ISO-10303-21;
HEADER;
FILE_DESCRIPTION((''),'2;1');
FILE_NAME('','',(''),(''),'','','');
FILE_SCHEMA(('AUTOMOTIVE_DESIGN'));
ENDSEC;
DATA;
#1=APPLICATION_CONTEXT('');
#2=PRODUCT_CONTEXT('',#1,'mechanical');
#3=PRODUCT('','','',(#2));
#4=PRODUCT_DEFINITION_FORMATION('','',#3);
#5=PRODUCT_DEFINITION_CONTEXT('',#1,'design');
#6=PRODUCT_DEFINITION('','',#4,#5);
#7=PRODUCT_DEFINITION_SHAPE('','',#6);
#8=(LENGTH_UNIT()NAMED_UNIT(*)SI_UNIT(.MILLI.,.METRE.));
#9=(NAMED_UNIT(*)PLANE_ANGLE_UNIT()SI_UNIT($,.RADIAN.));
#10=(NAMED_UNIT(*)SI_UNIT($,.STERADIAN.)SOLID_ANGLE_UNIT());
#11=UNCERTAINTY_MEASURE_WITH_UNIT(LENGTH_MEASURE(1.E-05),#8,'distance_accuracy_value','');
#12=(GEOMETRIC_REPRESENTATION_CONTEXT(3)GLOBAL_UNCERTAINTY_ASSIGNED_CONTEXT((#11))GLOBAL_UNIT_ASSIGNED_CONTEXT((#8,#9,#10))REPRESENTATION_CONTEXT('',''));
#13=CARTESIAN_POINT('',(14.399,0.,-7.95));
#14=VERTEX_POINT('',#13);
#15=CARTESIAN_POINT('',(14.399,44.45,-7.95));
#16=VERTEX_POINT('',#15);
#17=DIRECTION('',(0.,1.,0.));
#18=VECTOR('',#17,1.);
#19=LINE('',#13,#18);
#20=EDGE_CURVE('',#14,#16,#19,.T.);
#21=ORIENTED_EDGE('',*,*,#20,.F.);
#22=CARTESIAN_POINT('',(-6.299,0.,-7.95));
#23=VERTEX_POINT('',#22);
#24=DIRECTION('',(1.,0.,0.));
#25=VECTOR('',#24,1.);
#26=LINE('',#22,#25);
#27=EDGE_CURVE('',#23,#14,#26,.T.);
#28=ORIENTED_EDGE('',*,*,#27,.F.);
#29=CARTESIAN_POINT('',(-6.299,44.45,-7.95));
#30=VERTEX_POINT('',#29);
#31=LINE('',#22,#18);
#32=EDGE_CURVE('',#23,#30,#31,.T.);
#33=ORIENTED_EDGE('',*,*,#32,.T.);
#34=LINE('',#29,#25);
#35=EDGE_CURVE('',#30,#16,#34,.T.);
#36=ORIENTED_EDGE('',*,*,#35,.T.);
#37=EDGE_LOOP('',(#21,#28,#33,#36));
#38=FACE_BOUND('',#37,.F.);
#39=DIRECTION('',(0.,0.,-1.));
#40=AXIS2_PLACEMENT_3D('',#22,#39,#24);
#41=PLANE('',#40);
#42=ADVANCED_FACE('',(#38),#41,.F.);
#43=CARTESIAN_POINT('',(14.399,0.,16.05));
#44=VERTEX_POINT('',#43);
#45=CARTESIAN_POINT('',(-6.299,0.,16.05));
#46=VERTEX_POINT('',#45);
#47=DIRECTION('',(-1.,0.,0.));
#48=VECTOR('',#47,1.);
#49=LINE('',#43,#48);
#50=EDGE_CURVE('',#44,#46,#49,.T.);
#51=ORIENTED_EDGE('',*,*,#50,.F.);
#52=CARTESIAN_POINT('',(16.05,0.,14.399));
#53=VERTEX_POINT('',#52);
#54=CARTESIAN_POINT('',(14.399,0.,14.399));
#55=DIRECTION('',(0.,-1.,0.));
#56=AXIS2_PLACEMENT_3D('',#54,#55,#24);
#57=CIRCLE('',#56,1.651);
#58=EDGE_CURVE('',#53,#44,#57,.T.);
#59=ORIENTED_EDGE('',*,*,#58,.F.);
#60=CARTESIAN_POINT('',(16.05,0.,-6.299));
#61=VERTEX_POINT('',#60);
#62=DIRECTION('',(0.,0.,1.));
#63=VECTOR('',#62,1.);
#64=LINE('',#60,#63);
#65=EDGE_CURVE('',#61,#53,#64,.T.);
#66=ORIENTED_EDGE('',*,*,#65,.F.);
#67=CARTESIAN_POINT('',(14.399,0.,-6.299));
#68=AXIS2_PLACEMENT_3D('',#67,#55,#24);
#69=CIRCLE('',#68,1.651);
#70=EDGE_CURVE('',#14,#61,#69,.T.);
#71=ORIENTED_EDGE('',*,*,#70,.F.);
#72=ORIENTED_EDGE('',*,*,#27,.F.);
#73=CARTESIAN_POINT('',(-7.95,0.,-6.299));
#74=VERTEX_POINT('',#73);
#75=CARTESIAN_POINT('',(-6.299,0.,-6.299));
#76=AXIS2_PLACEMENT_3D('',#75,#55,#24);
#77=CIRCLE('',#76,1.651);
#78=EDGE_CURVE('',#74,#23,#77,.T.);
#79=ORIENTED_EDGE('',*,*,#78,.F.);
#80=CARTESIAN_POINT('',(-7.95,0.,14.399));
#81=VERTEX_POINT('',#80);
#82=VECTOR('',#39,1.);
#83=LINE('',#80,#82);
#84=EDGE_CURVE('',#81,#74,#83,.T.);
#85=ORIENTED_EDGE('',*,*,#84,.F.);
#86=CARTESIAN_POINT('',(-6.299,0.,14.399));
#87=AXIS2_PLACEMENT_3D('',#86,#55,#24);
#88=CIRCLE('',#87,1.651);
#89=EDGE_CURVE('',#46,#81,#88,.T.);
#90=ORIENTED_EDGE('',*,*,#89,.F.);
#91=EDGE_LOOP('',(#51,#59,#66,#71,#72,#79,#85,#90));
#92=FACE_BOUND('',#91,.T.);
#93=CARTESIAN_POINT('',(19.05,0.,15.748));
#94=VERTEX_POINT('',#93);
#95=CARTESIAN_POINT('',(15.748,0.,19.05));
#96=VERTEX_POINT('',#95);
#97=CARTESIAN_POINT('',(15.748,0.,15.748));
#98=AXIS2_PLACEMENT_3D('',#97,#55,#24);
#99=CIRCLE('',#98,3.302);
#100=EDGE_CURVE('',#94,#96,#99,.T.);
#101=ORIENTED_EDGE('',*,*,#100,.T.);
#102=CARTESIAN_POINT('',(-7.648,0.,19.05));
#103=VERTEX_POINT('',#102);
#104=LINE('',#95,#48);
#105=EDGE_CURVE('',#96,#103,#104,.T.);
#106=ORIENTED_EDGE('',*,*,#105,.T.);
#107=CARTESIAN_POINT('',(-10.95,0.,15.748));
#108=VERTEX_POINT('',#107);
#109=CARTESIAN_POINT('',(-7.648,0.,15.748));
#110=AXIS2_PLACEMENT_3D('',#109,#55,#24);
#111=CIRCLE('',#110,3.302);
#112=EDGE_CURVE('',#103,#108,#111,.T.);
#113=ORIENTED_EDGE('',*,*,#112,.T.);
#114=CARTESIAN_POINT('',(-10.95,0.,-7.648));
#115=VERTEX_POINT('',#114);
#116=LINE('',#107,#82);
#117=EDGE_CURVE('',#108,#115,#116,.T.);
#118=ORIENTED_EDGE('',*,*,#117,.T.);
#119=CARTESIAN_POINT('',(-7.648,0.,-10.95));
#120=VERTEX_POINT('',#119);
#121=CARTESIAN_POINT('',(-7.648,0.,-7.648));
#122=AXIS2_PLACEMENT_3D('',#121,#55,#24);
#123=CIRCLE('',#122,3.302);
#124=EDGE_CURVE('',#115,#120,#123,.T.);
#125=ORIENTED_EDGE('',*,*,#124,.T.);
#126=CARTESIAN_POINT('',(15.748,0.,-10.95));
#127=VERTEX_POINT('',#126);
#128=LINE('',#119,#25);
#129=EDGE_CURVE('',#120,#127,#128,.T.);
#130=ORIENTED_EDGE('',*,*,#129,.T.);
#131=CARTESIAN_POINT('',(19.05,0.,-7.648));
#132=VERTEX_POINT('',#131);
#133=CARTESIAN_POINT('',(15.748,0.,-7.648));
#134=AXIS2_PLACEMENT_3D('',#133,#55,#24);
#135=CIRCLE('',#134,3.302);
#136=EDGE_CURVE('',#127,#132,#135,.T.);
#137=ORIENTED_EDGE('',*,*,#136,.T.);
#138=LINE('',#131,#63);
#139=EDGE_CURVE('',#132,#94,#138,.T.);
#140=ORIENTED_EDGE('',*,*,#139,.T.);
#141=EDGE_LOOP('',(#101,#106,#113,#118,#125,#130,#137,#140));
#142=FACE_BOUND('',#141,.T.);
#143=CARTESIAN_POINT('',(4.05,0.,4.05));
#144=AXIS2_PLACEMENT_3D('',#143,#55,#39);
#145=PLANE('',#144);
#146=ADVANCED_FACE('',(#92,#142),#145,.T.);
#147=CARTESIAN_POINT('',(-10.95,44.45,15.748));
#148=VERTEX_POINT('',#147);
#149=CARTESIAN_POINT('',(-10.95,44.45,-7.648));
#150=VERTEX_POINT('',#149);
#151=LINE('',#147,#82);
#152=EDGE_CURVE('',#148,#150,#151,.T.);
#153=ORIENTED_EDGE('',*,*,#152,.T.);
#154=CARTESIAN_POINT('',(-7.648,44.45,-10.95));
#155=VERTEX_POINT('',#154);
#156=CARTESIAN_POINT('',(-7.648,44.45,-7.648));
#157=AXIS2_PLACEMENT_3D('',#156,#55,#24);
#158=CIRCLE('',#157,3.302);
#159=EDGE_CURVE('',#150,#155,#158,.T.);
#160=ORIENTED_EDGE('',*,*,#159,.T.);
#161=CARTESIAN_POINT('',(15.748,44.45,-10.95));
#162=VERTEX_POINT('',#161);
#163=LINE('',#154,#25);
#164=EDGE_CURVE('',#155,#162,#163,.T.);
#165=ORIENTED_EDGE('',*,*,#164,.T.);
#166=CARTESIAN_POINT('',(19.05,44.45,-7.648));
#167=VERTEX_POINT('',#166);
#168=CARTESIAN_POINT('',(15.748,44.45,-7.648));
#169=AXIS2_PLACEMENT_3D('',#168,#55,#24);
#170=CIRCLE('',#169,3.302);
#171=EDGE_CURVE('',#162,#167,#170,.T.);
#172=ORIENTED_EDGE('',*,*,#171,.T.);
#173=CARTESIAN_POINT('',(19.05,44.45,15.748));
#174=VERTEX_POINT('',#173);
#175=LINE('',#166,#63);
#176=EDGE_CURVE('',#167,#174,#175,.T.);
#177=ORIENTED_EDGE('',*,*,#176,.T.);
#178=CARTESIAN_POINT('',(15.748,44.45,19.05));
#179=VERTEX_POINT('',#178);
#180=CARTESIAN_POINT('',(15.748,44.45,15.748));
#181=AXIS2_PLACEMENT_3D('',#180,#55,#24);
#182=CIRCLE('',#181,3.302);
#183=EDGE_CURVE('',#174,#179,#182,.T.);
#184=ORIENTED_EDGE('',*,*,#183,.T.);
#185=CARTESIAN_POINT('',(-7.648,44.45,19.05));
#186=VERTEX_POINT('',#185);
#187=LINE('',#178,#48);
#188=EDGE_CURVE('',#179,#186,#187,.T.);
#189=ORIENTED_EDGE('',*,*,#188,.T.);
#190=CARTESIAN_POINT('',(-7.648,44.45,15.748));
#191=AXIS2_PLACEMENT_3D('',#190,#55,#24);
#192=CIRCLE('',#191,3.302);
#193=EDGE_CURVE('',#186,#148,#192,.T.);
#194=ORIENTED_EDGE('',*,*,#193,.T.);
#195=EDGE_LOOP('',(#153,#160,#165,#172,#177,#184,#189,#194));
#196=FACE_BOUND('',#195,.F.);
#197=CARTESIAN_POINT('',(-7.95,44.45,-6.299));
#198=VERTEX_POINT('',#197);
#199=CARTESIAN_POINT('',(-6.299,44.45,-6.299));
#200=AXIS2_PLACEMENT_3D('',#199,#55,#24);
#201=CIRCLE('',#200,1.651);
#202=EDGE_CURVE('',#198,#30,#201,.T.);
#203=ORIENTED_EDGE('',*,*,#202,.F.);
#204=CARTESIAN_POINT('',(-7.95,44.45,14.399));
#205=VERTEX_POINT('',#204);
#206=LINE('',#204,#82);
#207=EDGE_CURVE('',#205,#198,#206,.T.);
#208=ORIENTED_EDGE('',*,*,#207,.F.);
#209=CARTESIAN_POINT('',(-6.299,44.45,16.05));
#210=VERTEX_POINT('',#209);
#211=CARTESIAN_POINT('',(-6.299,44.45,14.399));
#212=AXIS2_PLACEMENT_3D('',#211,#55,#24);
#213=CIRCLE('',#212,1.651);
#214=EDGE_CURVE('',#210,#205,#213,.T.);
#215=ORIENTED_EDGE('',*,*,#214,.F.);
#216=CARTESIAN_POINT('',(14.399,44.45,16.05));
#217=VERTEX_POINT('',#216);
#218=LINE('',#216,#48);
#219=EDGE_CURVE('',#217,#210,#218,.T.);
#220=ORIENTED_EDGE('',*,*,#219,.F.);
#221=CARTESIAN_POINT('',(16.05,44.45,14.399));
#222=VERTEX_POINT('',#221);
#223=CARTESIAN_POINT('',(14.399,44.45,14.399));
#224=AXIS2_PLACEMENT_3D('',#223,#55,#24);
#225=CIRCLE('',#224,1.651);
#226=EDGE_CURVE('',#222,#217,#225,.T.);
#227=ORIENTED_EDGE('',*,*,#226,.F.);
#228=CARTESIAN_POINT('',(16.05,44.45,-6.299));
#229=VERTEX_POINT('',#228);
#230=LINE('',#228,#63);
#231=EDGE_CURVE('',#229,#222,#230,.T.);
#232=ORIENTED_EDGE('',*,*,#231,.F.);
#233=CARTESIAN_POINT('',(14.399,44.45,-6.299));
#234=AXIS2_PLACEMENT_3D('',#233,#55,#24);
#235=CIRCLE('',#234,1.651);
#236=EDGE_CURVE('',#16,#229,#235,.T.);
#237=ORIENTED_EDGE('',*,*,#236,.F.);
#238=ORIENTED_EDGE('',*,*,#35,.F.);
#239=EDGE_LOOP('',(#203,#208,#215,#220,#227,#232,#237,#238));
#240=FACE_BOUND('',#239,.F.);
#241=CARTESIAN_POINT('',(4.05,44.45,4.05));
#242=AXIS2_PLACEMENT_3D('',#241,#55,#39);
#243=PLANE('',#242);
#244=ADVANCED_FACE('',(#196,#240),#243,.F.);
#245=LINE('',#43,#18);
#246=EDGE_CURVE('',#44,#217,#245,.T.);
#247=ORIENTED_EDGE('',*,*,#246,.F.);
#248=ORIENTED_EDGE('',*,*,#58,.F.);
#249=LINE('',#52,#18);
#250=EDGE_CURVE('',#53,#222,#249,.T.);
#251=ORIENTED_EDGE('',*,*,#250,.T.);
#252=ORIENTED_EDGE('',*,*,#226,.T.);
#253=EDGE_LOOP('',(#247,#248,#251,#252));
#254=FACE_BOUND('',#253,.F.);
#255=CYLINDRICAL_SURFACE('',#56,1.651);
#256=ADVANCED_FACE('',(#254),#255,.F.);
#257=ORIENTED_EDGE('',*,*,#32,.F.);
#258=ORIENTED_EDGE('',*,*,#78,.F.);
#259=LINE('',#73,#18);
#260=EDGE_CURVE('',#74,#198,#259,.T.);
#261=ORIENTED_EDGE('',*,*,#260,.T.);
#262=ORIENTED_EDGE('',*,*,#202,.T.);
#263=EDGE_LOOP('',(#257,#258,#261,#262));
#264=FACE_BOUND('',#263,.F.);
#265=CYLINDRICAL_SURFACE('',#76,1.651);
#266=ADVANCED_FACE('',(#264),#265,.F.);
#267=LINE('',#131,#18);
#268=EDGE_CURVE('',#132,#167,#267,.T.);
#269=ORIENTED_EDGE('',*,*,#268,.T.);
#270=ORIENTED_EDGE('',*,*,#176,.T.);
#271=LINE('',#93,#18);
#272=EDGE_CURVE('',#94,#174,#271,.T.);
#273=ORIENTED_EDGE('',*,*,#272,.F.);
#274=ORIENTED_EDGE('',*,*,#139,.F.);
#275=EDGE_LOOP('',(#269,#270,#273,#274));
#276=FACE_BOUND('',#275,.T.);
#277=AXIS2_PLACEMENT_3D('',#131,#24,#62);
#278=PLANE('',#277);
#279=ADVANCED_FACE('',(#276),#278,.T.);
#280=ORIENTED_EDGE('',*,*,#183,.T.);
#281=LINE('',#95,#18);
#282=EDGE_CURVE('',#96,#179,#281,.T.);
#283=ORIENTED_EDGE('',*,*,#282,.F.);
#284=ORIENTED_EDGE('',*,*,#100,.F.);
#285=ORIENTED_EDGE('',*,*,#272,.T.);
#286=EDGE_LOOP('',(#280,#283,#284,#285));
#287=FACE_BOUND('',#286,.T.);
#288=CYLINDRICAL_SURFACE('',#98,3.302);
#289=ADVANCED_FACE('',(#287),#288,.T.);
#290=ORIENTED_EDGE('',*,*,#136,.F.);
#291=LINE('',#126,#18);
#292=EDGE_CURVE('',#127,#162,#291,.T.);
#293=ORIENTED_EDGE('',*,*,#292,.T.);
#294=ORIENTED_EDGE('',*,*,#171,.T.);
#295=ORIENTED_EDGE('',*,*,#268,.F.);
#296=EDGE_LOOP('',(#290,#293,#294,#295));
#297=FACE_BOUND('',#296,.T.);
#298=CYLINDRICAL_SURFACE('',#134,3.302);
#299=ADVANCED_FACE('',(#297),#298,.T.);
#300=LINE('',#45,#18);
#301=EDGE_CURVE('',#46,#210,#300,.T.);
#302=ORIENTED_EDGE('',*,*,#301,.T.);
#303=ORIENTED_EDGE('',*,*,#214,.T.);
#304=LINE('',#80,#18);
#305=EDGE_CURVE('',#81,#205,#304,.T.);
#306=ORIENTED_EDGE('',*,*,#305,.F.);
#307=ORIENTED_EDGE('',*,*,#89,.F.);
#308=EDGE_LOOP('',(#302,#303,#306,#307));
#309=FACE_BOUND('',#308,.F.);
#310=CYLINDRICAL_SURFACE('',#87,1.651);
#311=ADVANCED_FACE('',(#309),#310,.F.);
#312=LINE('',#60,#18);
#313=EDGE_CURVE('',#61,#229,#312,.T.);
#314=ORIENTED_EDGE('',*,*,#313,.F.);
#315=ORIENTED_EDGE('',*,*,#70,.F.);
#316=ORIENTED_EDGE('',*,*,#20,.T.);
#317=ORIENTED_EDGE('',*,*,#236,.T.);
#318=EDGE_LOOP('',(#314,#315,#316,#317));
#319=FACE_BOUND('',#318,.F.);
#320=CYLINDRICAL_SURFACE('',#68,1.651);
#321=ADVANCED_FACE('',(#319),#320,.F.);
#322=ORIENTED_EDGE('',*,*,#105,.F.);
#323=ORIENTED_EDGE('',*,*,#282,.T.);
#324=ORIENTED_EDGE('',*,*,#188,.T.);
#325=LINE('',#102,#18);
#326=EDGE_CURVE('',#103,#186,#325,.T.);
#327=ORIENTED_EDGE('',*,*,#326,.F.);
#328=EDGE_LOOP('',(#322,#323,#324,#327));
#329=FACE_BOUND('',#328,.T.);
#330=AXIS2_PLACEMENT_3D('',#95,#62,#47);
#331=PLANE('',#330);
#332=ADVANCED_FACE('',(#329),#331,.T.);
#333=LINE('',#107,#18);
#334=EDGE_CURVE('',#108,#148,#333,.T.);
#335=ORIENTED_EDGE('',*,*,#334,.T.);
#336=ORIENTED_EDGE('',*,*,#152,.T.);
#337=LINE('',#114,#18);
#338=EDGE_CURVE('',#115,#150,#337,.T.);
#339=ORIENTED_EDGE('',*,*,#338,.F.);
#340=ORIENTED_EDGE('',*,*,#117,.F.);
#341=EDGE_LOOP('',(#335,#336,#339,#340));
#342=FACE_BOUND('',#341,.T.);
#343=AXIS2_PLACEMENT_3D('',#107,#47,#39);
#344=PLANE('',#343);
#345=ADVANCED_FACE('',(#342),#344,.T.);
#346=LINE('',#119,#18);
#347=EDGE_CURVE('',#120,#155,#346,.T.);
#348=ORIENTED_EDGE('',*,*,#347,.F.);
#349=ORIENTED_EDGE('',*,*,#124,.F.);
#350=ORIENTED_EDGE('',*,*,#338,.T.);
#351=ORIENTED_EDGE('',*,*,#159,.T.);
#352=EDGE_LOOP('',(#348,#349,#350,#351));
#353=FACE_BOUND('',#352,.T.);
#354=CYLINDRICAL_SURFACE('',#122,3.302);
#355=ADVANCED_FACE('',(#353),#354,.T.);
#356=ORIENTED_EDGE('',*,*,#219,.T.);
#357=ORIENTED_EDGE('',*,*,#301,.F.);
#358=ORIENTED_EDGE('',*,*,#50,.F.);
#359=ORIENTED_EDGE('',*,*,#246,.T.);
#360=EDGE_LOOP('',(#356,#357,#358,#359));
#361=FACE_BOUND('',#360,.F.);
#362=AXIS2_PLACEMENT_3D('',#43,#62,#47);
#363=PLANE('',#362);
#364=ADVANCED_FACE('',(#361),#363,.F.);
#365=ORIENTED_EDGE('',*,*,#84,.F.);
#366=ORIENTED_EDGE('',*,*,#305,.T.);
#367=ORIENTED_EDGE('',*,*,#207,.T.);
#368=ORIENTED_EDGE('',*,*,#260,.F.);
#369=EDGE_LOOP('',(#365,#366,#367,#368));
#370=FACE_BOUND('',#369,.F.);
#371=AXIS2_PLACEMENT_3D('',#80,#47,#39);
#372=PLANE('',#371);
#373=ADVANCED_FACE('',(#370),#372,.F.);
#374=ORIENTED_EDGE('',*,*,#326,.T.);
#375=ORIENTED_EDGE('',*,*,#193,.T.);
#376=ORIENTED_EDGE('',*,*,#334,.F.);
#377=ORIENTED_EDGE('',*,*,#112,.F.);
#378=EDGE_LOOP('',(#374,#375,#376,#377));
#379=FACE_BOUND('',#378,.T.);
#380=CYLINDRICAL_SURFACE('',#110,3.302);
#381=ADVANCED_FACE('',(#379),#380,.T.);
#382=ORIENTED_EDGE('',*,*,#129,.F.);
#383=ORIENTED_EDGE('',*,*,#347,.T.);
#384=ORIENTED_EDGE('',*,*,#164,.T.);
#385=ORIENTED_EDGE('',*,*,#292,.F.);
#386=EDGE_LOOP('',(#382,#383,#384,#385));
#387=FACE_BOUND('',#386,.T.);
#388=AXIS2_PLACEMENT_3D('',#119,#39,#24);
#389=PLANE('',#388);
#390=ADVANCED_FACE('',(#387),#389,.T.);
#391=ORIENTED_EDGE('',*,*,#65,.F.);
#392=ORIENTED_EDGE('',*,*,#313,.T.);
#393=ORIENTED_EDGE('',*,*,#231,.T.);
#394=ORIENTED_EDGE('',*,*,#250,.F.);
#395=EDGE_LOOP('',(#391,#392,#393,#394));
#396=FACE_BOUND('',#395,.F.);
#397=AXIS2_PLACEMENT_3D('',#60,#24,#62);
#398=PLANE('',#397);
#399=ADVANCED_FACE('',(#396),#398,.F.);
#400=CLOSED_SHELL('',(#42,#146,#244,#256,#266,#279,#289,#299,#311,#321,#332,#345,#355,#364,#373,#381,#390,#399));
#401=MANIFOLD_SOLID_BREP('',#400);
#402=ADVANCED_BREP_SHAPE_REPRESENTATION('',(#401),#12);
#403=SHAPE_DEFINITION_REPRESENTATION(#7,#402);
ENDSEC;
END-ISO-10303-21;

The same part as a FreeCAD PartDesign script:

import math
import FreeCAD as App
import Part
import Sketcher

V = App.Vector
Q = App.Units.Quantity

doc = App.newDocument("Part")
body = doc.addObject("PartDesign::Body", "Body")

sketch1 = body.newObject("Sketcher::SketchObject", "Sketch")
sketch1.AttachmentSupport = (doc.getObject("XZ_Plane"), [""])
sketch1.MapMode = "FlatFace"
sketch1.addGeometry([
    Part.LineSegment(V(-10.9, 15.7, 0), V(-10.9, -7.6, 0)),
    Part.ArcOfCircle(Part.Circle(V(-7.6, -7.6, 0), V(0, 0, 1), 3.3), math.radians(180), math.radians(270)),
    Part.LineSegment(V(-7.6, -10.9, 0), V(15.7, -10.9, 0)),
    Part.ArcOfCircle(Part.Circle(V(15.7, -7.6, 0), V(0, 0, 1), 3.3), math.radians(-90), math.radians(0)),
    Part.LineSegment(V(19.1, -7.6, 0), V(19.1, 15.7, 0)),
    Part.ArcOfCircle(Part.Circle(V(15.7, 15.7, 0), V(0, 0, 1), 3.3), math.radians(0), math.radians(90)),
    Part.LineSegment(V(15.7, 19.1, 0), V(-7.6, 19.1, 0)),
    Part.ArcOfCircle(Part.Circle(V(-7.6, 15.7, 0), V(0, 0, 1), 3.3), math.radians(90), math.radians(180)),
    Part.LineSegment(V(-8, -6.3, 0), V(-8, 14.4, 0)),
    Part.ArcOfCircle(Part.Circle(V(-6.3, 14.4, 0), V(0, 0, 1), 1.7), math.radians(90), math.radians(180)),
    Part.LineSegment(V(-6.3, 16.1, 0), V(14.4, 16.1, 0)),
    Part.ArcOfCircle(Part.Circle(V(14.4, 14.4, 0), V(0, 0, 1), 1.7), math.radians(0), math.radians(90)),
    Part.LineSegment(V(16.1, 14.4, 0), V(16.1, -6.3, 0)),
    Part.ArcOfCircle(Part.Circle(V(14.4, -6.3, 0), V(0, 0, 1), 1.7), math.radians(-90), math.radians(0)),
    Part.LineSegment(V(14.4, -8, 0), V(-6.3, -8, 0)),
    Part.ArcOfCircle(Part.Circle(V(-6.3, -6.3, 0), V(0, 0, 1), 1.7), math.radians(180), math.radians(270)),
], False)
sketch1.addConstraint([
    Sketcher.Constraint("Tangent", 0, 2, 1, 1),
    Sketcher.Constraint("Tangent", 1, 2, 2, 1),
    Sketcher.Constraint("Tangent", 2, 2, 3, 1),
    Sketcher.Constraint("Tangent", 3, 2, 4, 1),
    Sketcher.Constraint("Tangent", 4, 2, 5, 1),
    Sketcher.Constraint("Tangent", 5, 2, 6, 1),
    Sketcher.Constraint("Tangent", 6, 2, 7, 1),
    Sketcher.Constraint("Tangent", 7, 2, 0, 1),
    Sketcher.Constraint("Tangent", 8, 2, 9, 2),
    Sketcher.Constraint("Tangent", 9, 1, 10, 1),
    Sketcher.Constraint("Tangent", 10, 2, 11, 2),
    Sketcher.Constraint("Tangent", 11, 1, 12, 1),
    Sketcher.Constraint("Tangent", 12, 2, 13, 2),
    Sketcher.Constraint("Tangent", 13, 1, 14, 1),
    Sketcher.Constraint("Tangent", 14, 2, 15, 2),
    Sketcher.Constraint("Tangent", 15, 1, 8, 1),
    Sketcher.Constraint("Vertical", 0),
    Sketcher.Constraint("Horizontal", 2),
    Sketcher.Constraint("Vertical", 4),
    Sketcher.Constraint("Horizontal", 6),
    Sketcher.Constraint("Vertical", 8),
    Sketcher.Constraint("Horizontal", 10),
    Sketcher.Constraint("Vertical", 12),
    Sketcher.Constraint("Horizontal", 14),
    Sketcher.Constraint("Equal", 1, 3),
    Sketcher.Constraint("Equal", 3, 5),
    Sketcher.Constraint("Equal", 5, 7),
    Sketcher.Constraint("Equal", 9, 11),
    Sketcher.Constraint("Equal", 11, 13),
    Sketcher.Constraint("Equal", 13, 15),
    Sketcher.Constraint("Equal", 6, 0),
    Sketcher.Constraint("Equal", 14, 8),
    Sketcher.Constraint("Radius", 1, Q("0.13 in")),
    Sketcher.Constraint("Radius", 9, Q("0.065 in")),
    Sketcher.Constraint("DistanceX", -1, 1, 3, 3, Q("0.62 in")),
    Sketcher.Constraint("DistanceY", -1, 1, 5, 3, Q("0.62 in")),
    Sketcher.Constraint("DistanceX", 2, 1, 2, 2, Q("0.9211 in")),
    Sketcher.Constraint("DistanceX", 9, 3, -1, 1, Q("0.248 in")),
    Sketcher.Constraint("DistanceY", 13, 3, -1, 1, Q("0.248 in")),
    Sketcher.Constraint("DistanceY", 1, 3, 9, 3, Q("0.868 in")),
])
pad1 = body.newObject("PartDesign::Pad", "Pad")
pad1.Profile = sketch1
pad1.Length = Q("1.75 in")
pad1.Reversed = True

doc.recompute()
